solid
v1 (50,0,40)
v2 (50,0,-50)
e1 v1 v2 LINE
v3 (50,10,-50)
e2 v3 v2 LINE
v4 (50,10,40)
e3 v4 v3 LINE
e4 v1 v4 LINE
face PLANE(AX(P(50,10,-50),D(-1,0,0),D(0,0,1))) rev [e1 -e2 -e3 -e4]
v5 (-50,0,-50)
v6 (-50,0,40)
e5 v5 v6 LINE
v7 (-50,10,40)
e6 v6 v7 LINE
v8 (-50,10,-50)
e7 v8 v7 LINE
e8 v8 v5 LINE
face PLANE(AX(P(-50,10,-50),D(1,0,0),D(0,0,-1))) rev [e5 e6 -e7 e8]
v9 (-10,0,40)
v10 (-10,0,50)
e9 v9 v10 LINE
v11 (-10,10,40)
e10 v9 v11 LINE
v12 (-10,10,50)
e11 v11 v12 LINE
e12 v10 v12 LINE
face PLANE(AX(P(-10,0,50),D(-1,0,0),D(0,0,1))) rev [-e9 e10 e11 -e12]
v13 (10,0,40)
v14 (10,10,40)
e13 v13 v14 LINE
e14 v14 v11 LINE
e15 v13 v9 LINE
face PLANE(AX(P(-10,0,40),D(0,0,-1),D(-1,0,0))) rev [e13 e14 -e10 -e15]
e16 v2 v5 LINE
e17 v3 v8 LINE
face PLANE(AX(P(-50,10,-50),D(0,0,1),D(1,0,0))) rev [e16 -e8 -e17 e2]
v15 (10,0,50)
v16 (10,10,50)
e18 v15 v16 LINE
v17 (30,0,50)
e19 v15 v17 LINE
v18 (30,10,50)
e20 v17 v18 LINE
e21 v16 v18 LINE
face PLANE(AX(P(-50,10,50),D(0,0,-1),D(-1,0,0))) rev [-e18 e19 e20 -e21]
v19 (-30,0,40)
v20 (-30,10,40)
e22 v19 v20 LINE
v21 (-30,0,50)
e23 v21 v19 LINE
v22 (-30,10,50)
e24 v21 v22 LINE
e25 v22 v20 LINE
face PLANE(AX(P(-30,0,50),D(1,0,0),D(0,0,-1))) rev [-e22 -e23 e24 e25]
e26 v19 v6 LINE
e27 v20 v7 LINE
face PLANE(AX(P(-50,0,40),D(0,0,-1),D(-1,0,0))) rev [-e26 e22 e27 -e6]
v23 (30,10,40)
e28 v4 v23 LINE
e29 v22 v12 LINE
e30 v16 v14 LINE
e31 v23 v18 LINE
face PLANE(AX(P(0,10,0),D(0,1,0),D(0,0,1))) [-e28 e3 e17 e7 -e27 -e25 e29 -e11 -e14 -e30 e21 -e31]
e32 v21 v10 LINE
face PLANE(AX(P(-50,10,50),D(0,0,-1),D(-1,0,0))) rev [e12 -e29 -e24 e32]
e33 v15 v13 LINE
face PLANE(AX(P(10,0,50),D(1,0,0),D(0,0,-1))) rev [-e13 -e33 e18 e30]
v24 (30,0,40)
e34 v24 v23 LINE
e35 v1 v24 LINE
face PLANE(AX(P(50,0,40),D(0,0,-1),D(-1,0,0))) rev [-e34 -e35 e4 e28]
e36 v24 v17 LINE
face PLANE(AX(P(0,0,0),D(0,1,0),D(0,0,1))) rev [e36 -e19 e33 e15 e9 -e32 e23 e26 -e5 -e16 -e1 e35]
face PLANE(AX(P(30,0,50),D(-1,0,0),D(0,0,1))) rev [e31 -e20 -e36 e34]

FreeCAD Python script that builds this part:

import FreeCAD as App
import Part
import Sketcher
Q = App.Units.Quantity


def add_polygon(sketch, points):
    """Adds a closed chain of lines whose ends are joined by coincident constraints."""
    first, n = sketch.GeometryCount, len(points)
    for a, b in zip(points, points[1:] + points[:1]):
        sketch.addGeometry(Part.LineSegment(App.Vector(*a, 0), App.Vector(*b, 0)), False)
    for i in range(n):
        sketch.addConstraint(Sketcher.Constraint("Coincident", first + i, 2, first + (i + 1) % n, 1))

doc = App.newDocument("Part")
body = doc.addObject("PartDesign::Body", "Body")

# Sketch on XZ plane
sketch1 = body.newObject("Sketcher::SketchObject", "Sketch")
sketch1.AttachmentSupport = (doc.getObject("XZ_Plane"), [""])
sketch1.MapMode = "FlatFace"
add_polygon(sketch1, [(-50, -50), (-50, 50), (50, 50), (50, -50)])  # lines 0-3
sketch1.addConstraint([
    Sketcher.Constraint("Vertical", 0),
    Sketcher.Constraint("Horizontal", 1),
    Sketcher.Constraint("Vertical", 2),
    Sketcher.Constraint("Horizontal", 3),
    Sketcher.Constraint("Symmetric", 0, 2, 2, 2, -1, 1),
    Sketcher.Constraint("Equal", 3, 0),
    Sketcher.Constraint("DistanceX", 1, 1, 1, 2, Q("100 mm")),
])
pad1 = body.newObject("PartDesign::Pad", "Pad")
pad1.Profile = sketch1
pad1.Length = 10
pad1.Reversed = True

# Sketch on XZ plane
sketch2 = body.newObject("Sketcher::SketchObject", "Sketch001")
sketch2.AttachmentSupport = (doc.getObject("XZ_Plane"), [""])
sketch2.MapMode = "FlatFace"
sketch2.AttachmentOffset = App.Placement(App.Vector(0, 0, -10), App.Rotation())
add_polygon(sketch2, [(-50, 40), (-50, 50), (-30, 50), (-30, 40)])  # lines 0-3
add_polygon(sketch2, [(-10, 40), (-10, 50), (10, 50), (10, 40)])  # lines 4-7
add_polygon(sketch2, [(30, 40), (30, 50), (50, 50), (50, 40)])  # lines 8-11
sketch2.addConstraint([
    Sketcher.Constraint("Vertical", 0),
    Sketcher.Constraint("Horizontal", 1),
    Sketcher.Constraint("Vertical", 2),
    Sketcher.Constraint("Horizontal", 3),
    Sketcher.Constraint("Vertical", 4),
    Sketcher.Constraint("Horizontal", 5),
    Sketcher.Constraint("Vertical", 6),
    Sketcher.Constraint("Horizontal", 7),
    Sketcher.Constraint("Vertical", 8),
    Sketcher.Constraint("Horizontal", 9),
    Sketcher.Constraint("Vertical", 10),
    Sketcher.Constraint("Horizontal", 11),
    Sketcher.Constraint("Symmetric", 1, 2, 8, 2, -2),
    Sketcher.Constraint("Symmetric", 3, 2, 10, 2, -2),
    Sketcher.Constraint("Horizontal", 1, 2, 4, 2),
    Sketcher.Constraint("Horizontal", 3, 2, 6, 2),
    Sketcher.Constraint("Equal", 3, 5),
    Sketcher.Constraint("DistanceX", 1, 1, 1, 2, Q("20 mm")),
    Sketcher.Constraint("DistanceY", 0, 1, 0, 2, Q("10 mm")),
    Sketcher.Constraint("DistanceX", 0, 2, -1, 1, Q("50 mm")),
    Sketcher.Constraint("DistanceY", -1, 1, 0, 2, Q("50 mm")),
    Sketcher.Constraint("DistanceX", 4, 2, -1, 1, Q("10 mm")),
])
pocket1 = body.newObject("PartDesign::Pocket", "Pocket")
pocket1.Profile = sketch2
pocket1.Length = 10
pocket1.Reversed = True

doc.recompute()
